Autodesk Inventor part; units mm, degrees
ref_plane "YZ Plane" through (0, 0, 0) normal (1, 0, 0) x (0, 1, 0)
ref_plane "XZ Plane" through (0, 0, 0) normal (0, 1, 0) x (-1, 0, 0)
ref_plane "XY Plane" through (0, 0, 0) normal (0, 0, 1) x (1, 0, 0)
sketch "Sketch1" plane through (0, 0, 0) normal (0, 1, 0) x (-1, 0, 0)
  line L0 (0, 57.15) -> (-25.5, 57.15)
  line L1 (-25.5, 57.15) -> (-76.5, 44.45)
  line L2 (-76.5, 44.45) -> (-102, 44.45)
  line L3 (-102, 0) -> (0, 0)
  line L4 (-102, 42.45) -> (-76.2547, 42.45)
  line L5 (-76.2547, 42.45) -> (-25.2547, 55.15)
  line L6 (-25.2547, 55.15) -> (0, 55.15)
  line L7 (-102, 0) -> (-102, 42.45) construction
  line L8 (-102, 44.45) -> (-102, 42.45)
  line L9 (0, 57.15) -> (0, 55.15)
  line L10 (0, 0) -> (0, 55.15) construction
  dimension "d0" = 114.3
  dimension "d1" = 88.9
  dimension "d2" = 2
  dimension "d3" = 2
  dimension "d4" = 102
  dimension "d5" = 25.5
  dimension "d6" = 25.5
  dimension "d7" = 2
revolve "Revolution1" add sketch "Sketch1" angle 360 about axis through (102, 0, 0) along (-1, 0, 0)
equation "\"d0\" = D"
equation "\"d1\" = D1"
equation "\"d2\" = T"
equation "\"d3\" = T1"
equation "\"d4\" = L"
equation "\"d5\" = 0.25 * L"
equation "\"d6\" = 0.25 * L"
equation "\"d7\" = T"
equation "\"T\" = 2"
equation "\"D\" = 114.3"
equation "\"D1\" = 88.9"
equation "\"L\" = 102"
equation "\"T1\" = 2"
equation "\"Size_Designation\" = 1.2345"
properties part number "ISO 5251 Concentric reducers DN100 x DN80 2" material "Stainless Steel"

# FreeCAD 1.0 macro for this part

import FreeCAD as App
import Part
import Sketcher
from FreeCAD import Vector

doc = App.newDocument("Part")
params = doc.addObject("Spreadsheet::Sheet", "Params")
for row, (alias, value) in enumerate([
    ("sketch1_height", "2 mm"),
    ("sketch1_width", "25.5 mm"),
    ("revolution_angle", "360 deg"),
], start=1):
    params.set(f"A{row}", alias)
    params.set(f"B{row}", "=" + value)
    params.setAlias(f"B{row}", alias)

body = doc.addObject("PartDesign::Body", "Body")

# Sketch on XZ plane
sketch1 = body.newObject("Sketcher::SketchObject", "Sketch")
sketch1.AttachmentSupport = (doc.getObject("XZ_Plane"), [""])
sketch1.MapMode = "FlatFace"
sketch1.addGeometry([
    Part.LineSegment(Vector(0, 55.1, 0), Vector(0, 57.1, 0)),  # 0
    Part.LineSegment(Vector(0, 57.1, 0), Vector(25.5, 57.1, 0)),  # 1
    Part.LineSegment(Vector(25.5, 57.1, 0), Vector(76.5, 44.5, 0)),  # 2
    Part.LineSegment(Vector(76.5, 44.5, 0), Vector(102, 44.5, 0)),  # 3
    Part.LineSegment(Vector(102, 44.5, 0), Vector(102, 42.5, 0)),  # 4
    Part.LineSegment(Vector(102, 42.5, 0), Vector(76.3, 42.5, 0)),  # 5
    Part.LineSegment(Vector(76.3, 42.5, 0), Vector(25.3, 55.1, 0)),  # 6
    Part.LineSegment(Vector(25.3, 55.1, 0), Vector(0, 55.1, 0)),  # 7
], False)
sketch1.addConstraint([
    Sketcher.Constraint("Coincident", 0, 2, 1, 1),
    Sketcher.Constraint("Coincident", 1, 2, 2, 1),
    Sketcher.Constraint("Coincident", 2, 2, 3, 1),
    Sketcher.Constraint("Coincident", 3, 2, 4, 1),
    Sketcher.Constraint("Coincident", 4, 2, 5, 1),
    Sketcher.Constraint("Coincident", 5, 2, 6, 1),
    Sketcher.Constraint("Coincident", 6, 2, 7, 1),
    Sketcher.Constraint("Coincident", 7, 2, 0, 1),
    Sketcher.Constraint("Vertical", 0),
    Sketcher.Constraint("Horizontal", 1),
    Sketcher.Constraint("Horizontal", 3),
    Sketcher.Constraint("Vertical", 4),
    Sketcher.Constraint("Horizontal", 5),
    Sketcher.Constraint("Horizontal", 7),
    Sketcher.Constraint("PointOnObject", 0, 2, -2),
    Sketcher.Constraint("Parallel", 2, 6),
    Sketcher.Constraint("Equal", 1, 3),
    Sketcher.Constraint("Equal", 0, 4),
    Sketcher.Constraint("DistanceY", 0, 1, 0, 2, 2.0),
    Sketcher.Constraint("DistanceX", 1, 1, 1, 2, 25.5),
    Sketcher.Constraint("DistanceX", -1, 1, 3, 2, 102.0),
    Sketcher.Constraint("DistanceY", 2, 2, 1, 2, 12.7),
    Sketcher.Constraint("DistanceY", -1, 1, 0, 2, 57.15),
    Sketcher.Constraint("DistanceX", 5, 2, 5, 1, 25.7453),
])
sketch1.setExpression("Constraints[18]", "Params.sketch1_height")
sketch1.setExpression("Constraints[19]", "Params.sketch1_width")
revolution = body.newObject("PartDesign::Revolution", "Revolution")
revolution.Profile = sketch1
revolution.ReferenceAxis = (sketch1, ["H_Axis"])
revolution.setExpression("Angle", "Params.revolution_angle")

doc.recompute()
